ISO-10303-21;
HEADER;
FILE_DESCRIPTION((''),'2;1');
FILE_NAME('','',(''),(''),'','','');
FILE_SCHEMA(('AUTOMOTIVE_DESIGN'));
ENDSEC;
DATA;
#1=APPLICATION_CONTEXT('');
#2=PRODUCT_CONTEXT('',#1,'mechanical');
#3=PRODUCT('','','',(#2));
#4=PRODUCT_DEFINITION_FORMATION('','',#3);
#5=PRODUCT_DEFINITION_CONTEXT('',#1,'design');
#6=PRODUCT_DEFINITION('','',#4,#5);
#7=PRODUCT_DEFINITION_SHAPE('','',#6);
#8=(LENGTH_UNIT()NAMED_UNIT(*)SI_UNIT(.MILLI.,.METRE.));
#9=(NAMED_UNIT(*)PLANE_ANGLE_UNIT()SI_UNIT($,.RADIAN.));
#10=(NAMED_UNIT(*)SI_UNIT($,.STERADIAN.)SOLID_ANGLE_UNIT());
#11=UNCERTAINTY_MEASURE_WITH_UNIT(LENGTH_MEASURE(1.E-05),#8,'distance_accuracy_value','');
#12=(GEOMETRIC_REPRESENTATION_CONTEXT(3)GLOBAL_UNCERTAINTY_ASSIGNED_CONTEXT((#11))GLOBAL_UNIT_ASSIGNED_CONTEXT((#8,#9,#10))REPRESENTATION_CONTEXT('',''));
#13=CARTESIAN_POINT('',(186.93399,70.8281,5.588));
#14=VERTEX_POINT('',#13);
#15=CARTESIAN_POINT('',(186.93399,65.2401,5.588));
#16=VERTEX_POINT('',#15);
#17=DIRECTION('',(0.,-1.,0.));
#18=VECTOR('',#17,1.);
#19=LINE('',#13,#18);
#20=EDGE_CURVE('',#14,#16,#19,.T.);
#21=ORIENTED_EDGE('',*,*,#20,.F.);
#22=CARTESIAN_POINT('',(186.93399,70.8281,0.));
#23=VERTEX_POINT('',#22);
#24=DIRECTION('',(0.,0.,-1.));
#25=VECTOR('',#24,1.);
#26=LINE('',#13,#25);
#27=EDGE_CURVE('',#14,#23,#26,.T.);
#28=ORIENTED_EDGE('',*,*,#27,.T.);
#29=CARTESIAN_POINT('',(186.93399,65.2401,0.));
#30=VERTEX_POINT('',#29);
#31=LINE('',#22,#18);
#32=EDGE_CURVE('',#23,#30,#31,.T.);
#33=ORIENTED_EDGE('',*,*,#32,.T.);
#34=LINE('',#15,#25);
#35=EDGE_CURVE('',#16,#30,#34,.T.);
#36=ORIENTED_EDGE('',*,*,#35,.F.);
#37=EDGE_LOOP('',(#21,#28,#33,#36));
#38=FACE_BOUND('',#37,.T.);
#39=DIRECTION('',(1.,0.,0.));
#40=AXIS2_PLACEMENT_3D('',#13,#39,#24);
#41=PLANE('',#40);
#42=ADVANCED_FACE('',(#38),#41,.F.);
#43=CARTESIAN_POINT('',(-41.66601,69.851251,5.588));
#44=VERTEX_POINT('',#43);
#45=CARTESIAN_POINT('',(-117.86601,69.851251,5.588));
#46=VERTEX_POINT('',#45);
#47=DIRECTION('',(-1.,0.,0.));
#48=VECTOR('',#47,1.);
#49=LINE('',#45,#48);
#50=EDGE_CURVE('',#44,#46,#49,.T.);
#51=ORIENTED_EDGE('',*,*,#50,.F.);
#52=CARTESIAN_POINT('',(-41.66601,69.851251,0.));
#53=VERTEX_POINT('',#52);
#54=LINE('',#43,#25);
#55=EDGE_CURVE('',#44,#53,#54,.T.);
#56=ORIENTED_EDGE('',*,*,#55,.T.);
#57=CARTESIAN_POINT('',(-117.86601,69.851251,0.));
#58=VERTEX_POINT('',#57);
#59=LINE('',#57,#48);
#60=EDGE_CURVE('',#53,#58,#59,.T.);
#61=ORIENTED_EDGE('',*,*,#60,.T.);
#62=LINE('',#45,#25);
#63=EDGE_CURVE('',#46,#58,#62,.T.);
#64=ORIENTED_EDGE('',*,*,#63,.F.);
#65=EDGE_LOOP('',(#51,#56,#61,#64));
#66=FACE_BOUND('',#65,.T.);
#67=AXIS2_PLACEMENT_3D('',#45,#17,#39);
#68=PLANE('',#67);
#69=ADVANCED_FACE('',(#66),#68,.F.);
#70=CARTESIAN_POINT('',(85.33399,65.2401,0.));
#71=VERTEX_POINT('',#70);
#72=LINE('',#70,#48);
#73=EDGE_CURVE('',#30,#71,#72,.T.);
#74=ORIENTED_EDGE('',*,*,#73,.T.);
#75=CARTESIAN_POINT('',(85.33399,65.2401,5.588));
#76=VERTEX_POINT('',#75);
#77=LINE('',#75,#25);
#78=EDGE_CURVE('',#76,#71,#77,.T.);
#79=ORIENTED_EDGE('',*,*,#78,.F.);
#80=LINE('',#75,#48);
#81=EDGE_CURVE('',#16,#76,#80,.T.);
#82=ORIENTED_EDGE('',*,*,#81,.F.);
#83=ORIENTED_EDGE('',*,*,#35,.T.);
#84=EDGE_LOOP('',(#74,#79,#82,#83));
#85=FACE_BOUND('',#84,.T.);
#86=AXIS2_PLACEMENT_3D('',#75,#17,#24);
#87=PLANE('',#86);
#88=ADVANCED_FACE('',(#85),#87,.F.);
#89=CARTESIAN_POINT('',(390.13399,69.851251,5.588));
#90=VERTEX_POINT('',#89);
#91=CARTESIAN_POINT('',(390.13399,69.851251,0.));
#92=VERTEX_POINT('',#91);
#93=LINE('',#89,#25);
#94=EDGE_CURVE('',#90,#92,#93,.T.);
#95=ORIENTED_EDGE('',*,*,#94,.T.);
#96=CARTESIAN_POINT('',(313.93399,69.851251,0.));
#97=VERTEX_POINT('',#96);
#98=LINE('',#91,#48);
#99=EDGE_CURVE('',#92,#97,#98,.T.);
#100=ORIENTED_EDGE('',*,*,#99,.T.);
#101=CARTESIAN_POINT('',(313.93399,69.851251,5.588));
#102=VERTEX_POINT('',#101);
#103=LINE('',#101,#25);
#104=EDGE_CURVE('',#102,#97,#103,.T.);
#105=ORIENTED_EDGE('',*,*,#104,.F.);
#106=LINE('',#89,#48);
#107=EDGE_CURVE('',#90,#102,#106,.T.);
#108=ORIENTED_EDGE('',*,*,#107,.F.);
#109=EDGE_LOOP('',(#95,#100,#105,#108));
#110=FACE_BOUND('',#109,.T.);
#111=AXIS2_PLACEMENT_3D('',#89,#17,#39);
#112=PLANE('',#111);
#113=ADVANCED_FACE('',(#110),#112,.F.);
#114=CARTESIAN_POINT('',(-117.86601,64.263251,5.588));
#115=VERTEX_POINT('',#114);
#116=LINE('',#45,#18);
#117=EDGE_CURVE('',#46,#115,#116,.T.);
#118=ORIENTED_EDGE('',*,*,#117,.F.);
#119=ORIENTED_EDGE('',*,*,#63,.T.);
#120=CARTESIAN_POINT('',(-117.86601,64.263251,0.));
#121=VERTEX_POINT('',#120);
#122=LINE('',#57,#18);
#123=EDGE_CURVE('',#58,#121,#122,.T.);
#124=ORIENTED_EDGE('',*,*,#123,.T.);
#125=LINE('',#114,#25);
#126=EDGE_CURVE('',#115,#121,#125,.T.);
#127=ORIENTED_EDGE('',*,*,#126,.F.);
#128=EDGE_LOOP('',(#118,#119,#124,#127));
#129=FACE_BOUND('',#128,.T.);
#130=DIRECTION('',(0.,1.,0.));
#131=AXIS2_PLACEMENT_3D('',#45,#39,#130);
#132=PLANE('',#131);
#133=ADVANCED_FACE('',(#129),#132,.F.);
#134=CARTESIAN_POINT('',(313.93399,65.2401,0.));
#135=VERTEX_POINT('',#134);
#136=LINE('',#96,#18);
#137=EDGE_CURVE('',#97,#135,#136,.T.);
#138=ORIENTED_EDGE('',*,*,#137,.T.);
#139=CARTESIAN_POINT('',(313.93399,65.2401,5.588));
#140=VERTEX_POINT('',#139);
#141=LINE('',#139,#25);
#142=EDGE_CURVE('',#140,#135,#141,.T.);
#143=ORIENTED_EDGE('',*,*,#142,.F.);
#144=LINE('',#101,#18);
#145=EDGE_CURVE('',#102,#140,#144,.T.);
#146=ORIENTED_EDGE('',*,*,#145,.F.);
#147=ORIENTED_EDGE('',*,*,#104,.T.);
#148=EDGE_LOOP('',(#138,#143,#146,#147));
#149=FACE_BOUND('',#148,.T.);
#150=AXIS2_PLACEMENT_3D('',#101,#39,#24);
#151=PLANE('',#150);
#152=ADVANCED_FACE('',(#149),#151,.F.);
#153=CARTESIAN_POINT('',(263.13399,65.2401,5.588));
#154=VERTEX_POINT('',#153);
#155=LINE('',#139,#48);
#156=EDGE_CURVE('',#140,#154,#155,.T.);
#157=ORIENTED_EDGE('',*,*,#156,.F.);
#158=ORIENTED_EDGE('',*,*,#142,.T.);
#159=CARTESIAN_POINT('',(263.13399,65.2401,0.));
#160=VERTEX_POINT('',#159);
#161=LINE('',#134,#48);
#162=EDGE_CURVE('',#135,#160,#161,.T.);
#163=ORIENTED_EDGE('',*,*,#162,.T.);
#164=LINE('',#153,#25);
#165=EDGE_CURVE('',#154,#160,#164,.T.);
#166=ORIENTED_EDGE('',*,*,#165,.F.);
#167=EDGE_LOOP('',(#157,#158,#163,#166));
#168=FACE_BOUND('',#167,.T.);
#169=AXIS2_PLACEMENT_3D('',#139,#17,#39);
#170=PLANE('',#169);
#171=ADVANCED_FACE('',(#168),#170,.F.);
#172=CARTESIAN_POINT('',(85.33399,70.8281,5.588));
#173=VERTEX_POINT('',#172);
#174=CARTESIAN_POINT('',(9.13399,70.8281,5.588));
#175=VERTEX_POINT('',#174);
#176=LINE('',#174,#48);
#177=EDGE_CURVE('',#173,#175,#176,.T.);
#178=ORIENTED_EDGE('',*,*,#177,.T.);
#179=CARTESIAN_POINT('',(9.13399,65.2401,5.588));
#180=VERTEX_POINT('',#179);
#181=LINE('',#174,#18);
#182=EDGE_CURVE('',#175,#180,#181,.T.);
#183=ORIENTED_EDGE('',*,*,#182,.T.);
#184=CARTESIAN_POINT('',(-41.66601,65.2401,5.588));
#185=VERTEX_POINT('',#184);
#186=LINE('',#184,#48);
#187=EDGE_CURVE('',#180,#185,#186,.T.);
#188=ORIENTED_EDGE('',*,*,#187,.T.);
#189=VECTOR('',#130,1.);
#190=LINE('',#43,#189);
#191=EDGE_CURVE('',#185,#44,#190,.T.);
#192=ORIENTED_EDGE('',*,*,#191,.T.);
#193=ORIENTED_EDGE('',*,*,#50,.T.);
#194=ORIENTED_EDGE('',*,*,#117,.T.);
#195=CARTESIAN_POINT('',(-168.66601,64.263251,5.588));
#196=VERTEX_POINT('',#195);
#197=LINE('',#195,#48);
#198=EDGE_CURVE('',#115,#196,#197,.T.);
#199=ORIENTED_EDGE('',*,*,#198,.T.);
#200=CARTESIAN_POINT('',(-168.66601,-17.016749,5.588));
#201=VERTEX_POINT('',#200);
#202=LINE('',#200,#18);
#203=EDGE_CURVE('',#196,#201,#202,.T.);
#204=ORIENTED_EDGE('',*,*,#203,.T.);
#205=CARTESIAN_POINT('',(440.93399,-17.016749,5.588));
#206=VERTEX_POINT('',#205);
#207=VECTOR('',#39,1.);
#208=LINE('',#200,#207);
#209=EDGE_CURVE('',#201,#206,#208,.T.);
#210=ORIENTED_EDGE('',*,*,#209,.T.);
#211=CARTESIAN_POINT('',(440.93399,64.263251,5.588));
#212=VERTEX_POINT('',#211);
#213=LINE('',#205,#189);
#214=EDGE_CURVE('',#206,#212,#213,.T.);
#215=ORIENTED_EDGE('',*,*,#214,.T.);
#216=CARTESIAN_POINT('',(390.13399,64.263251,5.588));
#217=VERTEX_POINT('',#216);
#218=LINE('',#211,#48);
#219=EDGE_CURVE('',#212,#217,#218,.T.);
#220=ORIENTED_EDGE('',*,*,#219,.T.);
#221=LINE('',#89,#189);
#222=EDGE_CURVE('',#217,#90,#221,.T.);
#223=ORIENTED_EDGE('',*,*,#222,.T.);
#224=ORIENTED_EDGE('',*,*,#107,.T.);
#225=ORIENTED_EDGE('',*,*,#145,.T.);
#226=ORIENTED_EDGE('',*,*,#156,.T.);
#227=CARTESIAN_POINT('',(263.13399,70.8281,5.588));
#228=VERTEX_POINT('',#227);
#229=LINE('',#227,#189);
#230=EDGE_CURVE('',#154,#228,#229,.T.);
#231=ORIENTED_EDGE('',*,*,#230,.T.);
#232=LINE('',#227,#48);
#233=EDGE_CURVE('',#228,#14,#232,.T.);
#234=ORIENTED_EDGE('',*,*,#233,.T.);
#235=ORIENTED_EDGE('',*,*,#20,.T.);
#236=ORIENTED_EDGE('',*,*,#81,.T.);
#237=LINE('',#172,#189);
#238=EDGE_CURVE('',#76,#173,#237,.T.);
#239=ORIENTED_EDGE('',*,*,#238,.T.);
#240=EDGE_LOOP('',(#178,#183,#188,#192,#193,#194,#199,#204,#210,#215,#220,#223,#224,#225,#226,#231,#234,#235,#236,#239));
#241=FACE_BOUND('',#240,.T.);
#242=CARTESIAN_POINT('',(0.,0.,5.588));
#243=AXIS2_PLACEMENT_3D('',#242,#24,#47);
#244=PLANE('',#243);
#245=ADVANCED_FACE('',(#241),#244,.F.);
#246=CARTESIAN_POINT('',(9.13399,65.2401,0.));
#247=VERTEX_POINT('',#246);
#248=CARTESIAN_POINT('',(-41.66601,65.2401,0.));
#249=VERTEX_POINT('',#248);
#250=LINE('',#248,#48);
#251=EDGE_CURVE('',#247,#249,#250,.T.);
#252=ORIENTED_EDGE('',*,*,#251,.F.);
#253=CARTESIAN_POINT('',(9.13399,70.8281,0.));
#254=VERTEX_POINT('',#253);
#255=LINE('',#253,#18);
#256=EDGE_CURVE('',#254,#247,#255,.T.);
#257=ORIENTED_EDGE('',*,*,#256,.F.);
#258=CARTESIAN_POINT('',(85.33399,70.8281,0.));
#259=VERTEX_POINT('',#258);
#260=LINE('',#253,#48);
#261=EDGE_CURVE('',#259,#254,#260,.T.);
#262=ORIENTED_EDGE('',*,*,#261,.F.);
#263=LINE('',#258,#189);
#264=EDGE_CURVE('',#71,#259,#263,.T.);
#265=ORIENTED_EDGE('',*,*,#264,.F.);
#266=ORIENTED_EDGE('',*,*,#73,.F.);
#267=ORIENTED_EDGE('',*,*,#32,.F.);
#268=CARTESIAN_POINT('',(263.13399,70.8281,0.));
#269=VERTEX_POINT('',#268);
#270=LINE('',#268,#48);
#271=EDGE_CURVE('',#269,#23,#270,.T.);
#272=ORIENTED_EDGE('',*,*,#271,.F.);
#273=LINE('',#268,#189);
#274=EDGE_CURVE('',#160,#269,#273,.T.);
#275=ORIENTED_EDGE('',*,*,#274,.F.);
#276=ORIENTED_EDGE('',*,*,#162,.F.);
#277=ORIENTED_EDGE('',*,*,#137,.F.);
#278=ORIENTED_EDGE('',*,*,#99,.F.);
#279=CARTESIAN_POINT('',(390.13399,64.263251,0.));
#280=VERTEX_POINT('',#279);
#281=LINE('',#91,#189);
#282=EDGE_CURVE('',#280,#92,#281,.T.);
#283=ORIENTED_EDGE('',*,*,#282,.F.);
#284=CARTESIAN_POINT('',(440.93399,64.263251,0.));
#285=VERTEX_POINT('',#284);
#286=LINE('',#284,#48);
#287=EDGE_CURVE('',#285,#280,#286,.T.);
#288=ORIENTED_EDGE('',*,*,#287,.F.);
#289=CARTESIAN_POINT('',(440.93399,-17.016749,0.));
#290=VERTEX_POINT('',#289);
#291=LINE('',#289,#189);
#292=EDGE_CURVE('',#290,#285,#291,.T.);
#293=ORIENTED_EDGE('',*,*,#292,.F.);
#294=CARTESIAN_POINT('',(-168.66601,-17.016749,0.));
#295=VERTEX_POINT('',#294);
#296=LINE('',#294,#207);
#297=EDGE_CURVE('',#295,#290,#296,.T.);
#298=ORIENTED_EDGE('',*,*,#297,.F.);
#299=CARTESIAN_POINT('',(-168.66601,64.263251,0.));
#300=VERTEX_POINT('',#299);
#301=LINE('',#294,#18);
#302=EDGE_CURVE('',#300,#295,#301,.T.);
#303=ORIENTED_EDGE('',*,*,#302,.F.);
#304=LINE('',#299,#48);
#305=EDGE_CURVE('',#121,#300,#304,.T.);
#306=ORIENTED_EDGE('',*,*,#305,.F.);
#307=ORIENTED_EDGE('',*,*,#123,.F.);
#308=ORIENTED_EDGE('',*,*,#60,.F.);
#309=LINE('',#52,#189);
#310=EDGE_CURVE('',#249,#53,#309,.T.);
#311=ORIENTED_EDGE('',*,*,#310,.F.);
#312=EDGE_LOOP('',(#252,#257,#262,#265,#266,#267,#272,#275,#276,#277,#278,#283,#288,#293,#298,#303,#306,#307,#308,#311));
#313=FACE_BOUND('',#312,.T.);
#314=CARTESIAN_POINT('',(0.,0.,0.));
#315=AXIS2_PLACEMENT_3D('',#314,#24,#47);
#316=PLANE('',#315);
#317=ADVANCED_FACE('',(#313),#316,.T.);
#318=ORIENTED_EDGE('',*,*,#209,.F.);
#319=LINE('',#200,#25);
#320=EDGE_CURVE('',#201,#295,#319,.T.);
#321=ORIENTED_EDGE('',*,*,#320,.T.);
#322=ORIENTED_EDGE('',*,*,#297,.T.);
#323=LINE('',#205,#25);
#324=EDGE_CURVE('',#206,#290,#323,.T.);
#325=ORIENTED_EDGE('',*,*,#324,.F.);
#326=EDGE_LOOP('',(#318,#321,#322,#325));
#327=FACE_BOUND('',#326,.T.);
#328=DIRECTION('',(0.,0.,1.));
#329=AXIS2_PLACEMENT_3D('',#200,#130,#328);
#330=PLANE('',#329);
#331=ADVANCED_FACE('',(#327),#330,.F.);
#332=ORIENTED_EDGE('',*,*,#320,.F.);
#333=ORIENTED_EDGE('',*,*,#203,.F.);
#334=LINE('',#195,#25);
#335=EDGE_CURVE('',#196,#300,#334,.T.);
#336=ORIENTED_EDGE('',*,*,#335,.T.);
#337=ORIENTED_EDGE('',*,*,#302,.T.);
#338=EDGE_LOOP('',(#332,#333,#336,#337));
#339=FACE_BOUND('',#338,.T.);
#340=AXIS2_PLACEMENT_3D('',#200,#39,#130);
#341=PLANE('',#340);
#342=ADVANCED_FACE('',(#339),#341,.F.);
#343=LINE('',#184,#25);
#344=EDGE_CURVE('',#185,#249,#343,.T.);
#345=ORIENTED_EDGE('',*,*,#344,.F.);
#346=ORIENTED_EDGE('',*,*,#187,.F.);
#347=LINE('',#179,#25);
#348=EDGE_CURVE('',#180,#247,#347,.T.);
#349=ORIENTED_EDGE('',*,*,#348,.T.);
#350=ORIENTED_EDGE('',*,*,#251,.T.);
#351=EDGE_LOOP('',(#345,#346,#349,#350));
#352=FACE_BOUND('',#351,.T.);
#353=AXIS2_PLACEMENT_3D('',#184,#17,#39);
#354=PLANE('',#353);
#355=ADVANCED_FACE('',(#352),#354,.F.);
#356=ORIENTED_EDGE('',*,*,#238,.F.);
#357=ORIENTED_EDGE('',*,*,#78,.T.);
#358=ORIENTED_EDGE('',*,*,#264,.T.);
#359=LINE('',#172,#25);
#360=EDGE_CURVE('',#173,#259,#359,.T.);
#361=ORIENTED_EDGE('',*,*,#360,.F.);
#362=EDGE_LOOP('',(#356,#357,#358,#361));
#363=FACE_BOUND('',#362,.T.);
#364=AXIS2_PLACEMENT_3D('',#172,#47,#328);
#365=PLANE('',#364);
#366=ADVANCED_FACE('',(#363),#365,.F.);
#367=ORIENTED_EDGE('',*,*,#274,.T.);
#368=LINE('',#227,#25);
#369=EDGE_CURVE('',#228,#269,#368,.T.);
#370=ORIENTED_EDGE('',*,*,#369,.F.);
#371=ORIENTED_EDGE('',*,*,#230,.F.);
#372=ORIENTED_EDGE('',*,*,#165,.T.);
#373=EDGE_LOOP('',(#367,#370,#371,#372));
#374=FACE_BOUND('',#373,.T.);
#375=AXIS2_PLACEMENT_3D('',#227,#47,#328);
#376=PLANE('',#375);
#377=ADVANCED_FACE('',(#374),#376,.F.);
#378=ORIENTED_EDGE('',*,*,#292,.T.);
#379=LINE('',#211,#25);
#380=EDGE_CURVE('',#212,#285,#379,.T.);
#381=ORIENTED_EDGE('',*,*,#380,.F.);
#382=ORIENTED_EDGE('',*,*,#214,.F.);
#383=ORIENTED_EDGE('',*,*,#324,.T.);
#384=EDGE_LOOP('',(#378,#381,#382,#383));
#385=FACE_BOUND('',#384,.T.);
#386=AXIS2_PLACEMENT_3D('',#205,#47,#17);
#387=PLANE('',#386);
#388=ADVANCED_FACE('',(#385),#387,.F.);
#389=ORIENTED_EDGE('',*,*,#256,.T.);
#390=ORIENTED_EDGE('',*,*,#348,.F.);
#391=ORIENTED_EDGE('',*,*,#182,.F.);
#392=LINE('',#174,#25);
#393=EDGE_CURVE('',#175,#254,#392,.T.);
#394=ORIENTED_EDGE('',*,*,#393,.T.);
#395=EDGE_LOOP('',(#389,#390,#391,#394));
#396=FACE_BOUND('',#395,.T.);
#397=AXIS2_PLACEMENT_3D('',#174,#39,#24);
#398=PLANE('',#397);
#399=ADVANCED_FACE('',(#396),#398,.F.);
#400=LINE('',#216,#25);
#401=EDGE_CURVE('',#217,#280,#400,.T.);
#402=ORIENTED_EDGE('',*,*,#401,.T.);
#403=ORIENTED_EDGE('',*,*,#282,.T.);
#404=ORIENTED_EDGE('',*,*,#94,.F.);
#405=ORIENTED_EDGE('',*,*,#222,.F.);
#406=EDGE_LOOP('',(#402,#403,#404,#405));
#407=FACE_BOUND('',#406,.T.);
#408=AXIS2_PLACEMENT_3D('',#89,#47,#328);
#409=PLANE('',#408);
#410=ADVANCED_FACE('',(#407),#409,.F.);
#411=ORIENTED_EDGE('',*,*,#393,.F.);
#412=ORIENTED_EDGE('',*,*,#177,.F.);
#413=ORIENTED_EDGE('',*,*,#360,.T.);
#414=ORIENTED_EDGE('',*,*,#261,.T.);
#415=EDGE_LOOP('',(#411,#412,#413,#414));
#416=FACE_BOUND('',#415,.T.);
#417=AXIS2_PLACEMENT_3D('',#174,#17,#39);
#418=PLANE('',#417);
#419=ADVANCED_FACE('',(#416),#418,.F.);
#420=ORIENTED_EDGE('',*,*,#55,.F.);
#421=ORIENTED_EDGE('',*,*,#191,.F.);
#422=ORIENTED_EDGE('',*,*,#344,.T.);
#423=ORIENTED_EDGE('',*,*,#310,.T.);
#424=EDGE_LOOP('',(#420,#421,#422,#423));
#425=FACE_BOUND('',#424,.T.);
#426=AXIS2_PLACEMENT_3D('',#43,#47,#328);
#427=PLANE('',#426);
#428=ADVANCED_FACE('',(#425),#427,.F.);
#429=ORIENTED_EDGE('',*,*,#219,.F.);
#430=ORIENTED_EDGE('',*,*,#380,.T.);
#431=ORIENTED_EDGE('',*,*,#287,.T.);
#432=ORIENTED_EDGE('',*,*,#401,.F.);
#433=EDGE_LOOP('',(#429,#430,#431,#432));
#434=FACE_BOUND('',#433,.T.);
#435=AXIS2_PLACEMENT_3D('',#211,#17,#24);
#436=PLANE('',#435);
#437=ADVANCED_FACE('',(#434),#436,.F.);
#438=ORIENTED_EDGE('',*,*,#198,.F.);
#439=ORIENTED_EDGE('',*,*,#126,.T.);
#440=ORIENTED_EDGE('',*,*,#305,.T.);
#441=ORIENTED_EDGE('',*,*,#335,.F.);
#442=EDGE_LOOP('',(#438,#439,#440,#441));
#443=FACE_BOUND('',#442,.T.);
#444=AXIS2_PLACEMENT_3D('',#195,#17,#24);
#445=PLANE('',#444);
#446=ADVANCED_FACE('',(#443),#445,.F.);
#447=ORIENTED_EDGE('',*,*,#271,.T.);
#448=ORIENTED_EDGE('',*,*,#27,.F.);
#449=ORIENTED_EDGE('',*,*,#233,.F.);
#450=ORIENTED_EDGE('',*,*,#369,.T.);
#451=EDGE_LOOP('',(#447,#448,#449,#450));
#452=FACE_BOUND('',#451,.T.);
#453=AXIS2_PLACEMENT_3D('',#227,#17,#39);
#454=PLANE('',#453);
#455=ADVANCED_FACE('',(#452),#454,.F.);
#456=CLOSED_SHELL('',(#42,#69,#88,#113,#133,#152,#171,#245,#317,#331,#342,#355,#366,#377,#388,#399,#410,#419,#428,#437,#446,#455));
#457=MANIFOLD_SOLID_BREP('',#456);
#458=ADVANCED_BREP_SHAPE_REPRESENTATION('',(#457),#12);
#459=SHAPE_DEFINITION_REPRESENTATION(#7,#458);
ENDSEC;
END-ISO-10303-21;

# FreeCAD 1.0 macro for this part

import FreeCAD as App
import Part
import Sketcher
Q = App.Units.Quantity

doc = App.newDocument("Part")
body = doc.addObject("PartDesign::Body", "Body")

# Sketch on XY plane
sketch1 = body.newObject("Sketcher::SketchObject", "Sketch")
sketch1.AttachmentSupport = (doc.getObject("XY_Plane"), [""])
sketch1.MapMode = "FlatFace"
sketch1.addGeometry([
    Part.LineSegment(App.Vector(-41.7, 69.9, 0), App.Vector(-117.9, 69.9, 0)),  # 0
    Part.LineSegment(App.Vector(-117.9, 69.9, 0), App.Vector(-117.9, 64.3, 0)),  # 1
    Part.LineSegment(App.Vector(-117.9, 64.3, 0), App.Vector(-168.7, 64.3, 0)),  # 2
    Part.LineSegment(App.Vector(-168.7, 64.3, 0), App.Vector(-168.7, -17, 0)),  # 3
    Part.LineSegment(App.Vector(-168.7, -17, 0), App.Vector(440.9, -17, 0)),  # 4
    Part.LineSegment(App.Vector(440.9, -17, 0), App.Vector(440.9, 64.3, 0)),  # 5
    Part.LineSegment(App.Vector(440.9, 64.3, 0), App.Vector(390.1, 64.3, 0)),  # 6
    Part.LineSegment(App.Vector(390.1, 64.3, 0), App.Vector(390.1, 69.9, 0)),  # 7
    Part.LineSegment(App.Vector(390.1, 69.9, 0), App.Vector(313.9, 69.9, 0)),  # 8
    Part.LineSegment(App.Vector(313.9, 69.9, 0), App.Vector(313.9, 65.2, 0)),  # 9
    Part.LineSegment(App.Vector(313.9, 65.2, 0), App.Vector(263.1, 65.2, 0)),  # 10
    Part.LineSegment(App.Vector(263.1, 65.2, 0), App.Vector(263.1, 70.8, 0)),  # 11
    Part.LineSegment(App.Vector(263.1, 70.8, 0), App.Vector(186.9, 70.8, 0)),  # 12
    Part.LineSegment(App.Vector(186.9, 70.8, 0), App.Vector(186.9, 65.2, 0)),  # 13
    Part.LineSegment(App.Vector(186.9, 65.2, 0), App.Vector(85.3, 65.2, 0)),  # 14
    Part.LineSegment(App.Vector(85.3, 65.2, 0), App.Vector(85.3, 70.8, 0)),  # 15
    Part.LineSegment(App.Vector(85.3, 70.8, 0), App.Vector(9.1, 70.8, 0)),  # 16
    Part.LineSegment(App.Vector(9.1, 70.8, 0), App.Vector(9.1, 65.2, 0)),  # 17
    Part.LineSegment(App.Vector(9.1, 65.2, 0), App.Vector(-41.7, 65.2, 0)),  # 18
    Part.LineSegment(App.Vector(-41.7, 65.2, 0), App.Vector(-41.7, 69.9, 0)),  # 19
], False)
sketch1.addConstraint([
    Sketcher.Constraint("Coincident", 0, 2, 1, 1),
    Sketcher.Constraint("Coincident", 1, 2, 2, 1),
    Sketcher.Constraint("Coincident", 2, 2, 3, 1),
    Sketcher.Constraint("Coincident", 3, 2, 4, 1),
    Sketcher.Constraint("Coincident", 4, 2, 5, 1),
    Sketcher.Constraint("Coincident", 5, 2, 6, 1),
    Sketcher.Constraint("Coincident", 6, 2, 7, 1),
    Sketcher.Constraint("Coincident", 7, 2, 8, 1),
    Sketcher.Constraint("Coincident", 8, 2, 9, 1),
    Sketcher.Constraint("Coincident", 9, 2, 10, 1),
    Sketcher.Constraint("Coincident", 10, 2, 11, 1),
    Sketcher.Constraint("Coincident", 11, 2, 12, 1),
    Sketcher.Constraint("Coincident", 12, 2, 13, 1),
    Sketcher.Constraint("Coincident", 13, 2, 14, 1),
    Sketcher.Constraint("Coincident", 14, 2, 15, 1),
    Sketcher.Constraint("Coincident", 15, 2, 16, 1),
    Sketcher.Constraint("Coincident", 16, 2, 17, 1),
    Sketcher.Constraint("Coincident", 17, 2, 18, 1),
    Sketcher.Constraint("Coincident", 18, 2, 19, 1),
    Sketcher.Constraint("Coincident", 19, 2, 0, 1),
    Sketcher.Constraint("Horizontal", 0),
    Sketcher.Constraint("Vertical", 1),
    Sketcher.Constraint("Horizontal", 2),
    Sketcher.Constraint("Vertical", 3),
    Sketcher.Constraint("Horizontal", 4),
    Sketcher.Constraint("Vertical", 5),
    Sketcher.Constraint("Horizontal", 6),
    Sketcher.Constraint("Vertical", 7),
    Sketcher.Constraint("Horizontal", 8),
    Sketcher.Constraint("Vertical", 9),
    Sketcher.Constraint("Horizontal", 10),
    Sketcher.Constraint("Vertical", 11),
    Sketcher.Constraint("Horizontal", 12),
    Sketcher.Constraint("Vertical", 13),
    Sketcher.Constraint("Horizontal", 14),
    Sketcher.Constraint("Vertical", 15),
    Sketcher.Constraint("Horizontal", 16),
    Sketcher.Constraint("Vertical", 17),
    Sketcher.Constraint("Horizontal", 18),
    Sketcher.Constraint("Vertical", 19),
    Sketcher.Constraint("Horizontal", 2, 2, 5, 2),
    Sketcher.Constraint("Horizontal", 0, 2, 7, 2),
    Sketcher.Constraint("Horizontal", 10, 2, 13, 2),
    Sketcher.Constraint("Horizontal", 12, 2, 15, 2),
    Sketcher.Constraint("Horizontal", 14, 2, 17, 2),
    Sketcher.Constraint("Equal", 2, 6),
    Sketcher.Constraint("Equal", 0, 8),
    Sketcher.Constraint("Equal", 6, 10),
    Sketcher.Constraint("Equal", 8, 12),
    Sketcher.Constraint("Equal", 12, 16),
    Sketcher.Constraint("Equal", 10, 18),
    Sketcher.Constraint("Equal", 7, 11),
    Sketcher.Constraint("DistanceX", 0, 2, 0, 1, Q("3 in")),
    Sketcher.Constraint("DistanceX", 2, 2, 2, 1, Q("2 in")),
    Sketcher.Constraint("DistanceX", 4, 1, 4, 2, Q("24 in")),
    Sketcher.Constraint("DistanceY", 3, 2, 3, 1, Q("3.2 in")),
    Sketcher.Constraint("DistanceY", 1, 2, 1, 1, Q("0.22 in")),
    Sketcher.Constraint("DistanceY", 9, 2, 9, 1, 4.611151),
    Sketcher.Constraint("DistanceY", -1, 1, 9, 2, 65.2401),
    Sketcher.Constraint("DistanceX", 0, 2, -1, 1, 117.86601),
])
pad1 = body.newObject("PartDesign::Pad", "Pad")
pad1.Profile = sketch1
pad1.Length = Q("0.22 in")

doc.recompute()
